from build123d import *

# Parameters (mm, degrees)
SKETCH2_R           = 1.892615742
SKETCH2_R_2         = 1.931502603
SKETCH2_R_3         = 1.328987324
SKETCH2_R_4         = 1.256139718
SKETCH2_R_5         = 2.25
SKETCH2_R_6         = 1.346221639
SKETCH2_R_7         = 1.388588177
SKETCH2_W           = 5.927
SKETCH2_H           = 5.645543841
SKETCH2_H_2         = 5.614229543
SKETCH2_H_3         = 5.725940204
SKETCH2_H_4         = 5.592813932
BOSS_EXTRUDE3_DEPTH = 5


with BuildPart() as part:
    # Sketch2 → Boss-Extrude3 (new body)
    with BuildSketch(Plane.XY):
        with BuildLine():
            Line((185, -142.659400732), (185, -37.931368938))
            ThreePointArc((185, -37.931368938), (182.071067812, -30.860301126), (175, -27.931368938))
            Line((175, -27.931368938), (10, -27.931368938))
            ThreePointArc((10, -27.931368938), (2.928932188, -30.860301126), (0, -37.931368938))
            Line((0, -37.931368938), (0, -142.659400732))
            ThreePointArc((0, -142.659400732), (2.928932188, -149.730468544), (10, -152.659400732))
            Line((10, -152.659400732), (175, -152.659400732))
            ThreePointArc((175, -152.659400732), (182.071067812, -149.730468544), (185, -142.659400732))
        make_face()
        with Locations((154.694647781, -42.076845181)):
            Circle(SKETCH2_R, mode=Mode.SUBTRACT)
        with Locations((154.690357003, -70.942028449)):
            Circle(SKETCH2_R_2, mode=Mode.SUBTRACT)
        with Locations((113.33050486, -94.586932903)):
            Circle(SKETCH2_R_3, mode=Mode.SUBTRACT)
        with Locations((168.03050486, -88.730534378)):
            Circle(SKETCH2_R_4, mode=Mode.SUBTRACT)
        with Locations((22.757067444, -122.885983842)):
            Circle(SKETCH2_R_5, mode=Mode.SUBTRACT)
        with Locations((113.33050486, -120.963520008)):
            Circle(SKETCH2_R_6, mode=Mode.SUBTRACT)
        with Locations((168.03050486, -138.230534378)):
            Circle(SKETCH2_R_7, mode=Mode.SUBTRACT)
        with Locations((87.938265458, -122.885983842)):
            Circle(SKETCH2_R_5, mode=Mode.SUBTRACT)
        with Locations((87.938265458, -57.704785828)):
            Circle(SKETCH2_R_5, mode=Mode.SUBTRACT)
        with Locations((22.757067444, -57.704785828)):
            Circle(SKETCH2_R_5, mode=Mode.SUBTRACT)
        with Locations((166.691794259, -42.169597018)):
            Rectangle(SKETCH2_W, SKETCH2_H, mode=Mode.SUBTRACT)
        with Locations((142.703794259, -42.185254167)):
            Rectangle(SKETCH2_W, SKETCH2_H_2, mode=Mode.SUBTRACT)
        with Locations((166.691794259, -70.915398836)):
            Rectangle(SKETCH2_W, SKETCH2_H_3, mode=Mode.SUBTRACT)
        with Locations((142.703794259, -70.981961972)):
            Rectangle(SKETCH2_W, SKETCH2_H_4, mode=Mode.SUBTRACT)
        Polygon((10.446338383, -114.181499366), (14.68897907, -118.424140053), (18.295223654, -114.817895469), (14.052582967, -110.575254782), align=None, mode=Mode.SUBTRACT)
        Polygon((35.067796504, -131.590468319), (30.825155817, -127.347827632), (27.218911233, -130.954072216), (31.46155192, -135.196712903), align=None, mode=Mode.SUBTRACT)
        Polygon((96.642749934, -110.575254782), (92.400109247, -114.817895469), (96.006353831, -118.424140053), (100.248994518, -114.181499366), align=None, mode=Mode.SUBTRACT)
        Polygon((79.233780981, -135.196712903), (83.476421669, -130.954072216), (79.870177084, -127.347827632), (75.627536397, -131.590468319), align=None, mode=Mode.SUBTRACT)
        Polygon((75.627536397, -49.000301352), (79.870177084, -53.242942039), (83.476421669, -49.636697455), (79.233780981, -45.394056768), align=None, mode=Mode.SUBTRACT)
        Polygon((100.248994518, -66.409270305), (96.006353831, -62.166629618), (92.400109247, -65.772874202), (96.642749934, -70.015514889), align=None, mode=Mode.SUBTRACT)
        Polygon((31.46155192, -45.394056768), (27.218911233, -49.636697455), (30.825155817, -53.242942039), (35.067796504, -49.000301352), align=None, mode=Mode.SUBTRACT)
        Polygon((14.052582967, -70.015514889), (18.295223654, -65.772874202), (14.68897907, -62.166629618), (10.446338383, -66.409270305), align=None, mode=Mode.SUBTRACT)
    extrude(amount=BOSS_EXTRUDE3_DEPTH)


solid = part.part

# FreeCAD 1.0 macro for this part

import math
import FreeCAD as App
import Part
import Sketcher
from FreeCAD import Vector
Q = App.Units.Quantity


def add_polygon(sketch, points):
    """Adds a closed chain of lines whose ends are joined by coincident constraints."""
    first, n = sketch.GeometryCount, len(points)
    for a, b in zip(points, points[1:] + points[:1]):
        sketch.addGeometry(Part.LineSegment(App.Vector(*a, 0), App.Vector(*b, 0)), False)
    for i in range(n):
        sketch.addConstraint(Sketcher.Constraint("Coincident", first + i, 2, first + (i + 1) % n, 1))

doc = App.newDocument("Part")
body = doc.addObject("PartDesign::Body", "Body")

sketch1 = body.newObject("Sketcher::SketchObject", "Sketch")
sketch1.AttachmentSupport = (doc.getObject("XY_Plane"), [""])
sketch1.MapMode = "FlatFace"
sketch1.addGeometry(Part.LineSegment(Vector(185, -142.7, 0), Vector(185, -37.9, 0)), False)
sketch1.addGeometry(Part.ArcOfCircle(Part.Circle(Vector(175, -37.9, 0), Vector(0, 0, 1), 10), math.radians(0), math.radians(90)), False)
sketch1.addGeometry(Part.LineSegment(Vector(175, -27.9, 0), Vector(10, -27.9, 0)), False)
sketch1.addGeometry(Part.ArcOfCircle(Part.Circle(Vector(10, -37.9, 0), Vector(0, 0, 1), 10), math.radians(90), math.radians(180)), False)
sketch1.addGeometry(Part.LineSegment(Vector(0, -37.9, 0), Vector(0, -142.7, 0)), False)
sketch1.addGeometry(Part.ArcOfCircle(Part.Circle(Vector(10, -142.7, 0), Vector(0, 0, 1), 10), math.radians(180), math.radians(270)), False)
sketch1.addGeometry(Part.LineSegment(Vector(10, -152.7, 0), Vector(175, -152.7, 0)), False)
sketch1.addGeometry(Part.ArcOfCircle(Part.Circle(Vector(175, -142.7, 0), Vector(0, 0, 1), 10), math.radians(-90), math.radians(0)), False)
add_polygon(sketch1, [(30.8, -127.3), (35.1, -131.6), (31.5, -135.2), (27.2, -131)])
sketch1.addGeometry(Part.Circle(Vector(22.8, -122.9, 0), Vector(0, 0, 1), 2.2), False)
add_polygon(sketch1, [(83.5, -131), (79.2, -135.2), (75.6, -131.6), (79.9, -127.3)])
sketch1.addGeometry(Part.Circle(Vector(87.9, -122.9, 0), Vector(0, 0, 1), 2.2), False)
add_polygon(sketch1, [(14.7, -118.4), (10.4, -114.2), (14.1, -110.6), (18.3, -114.8)])
sketch1.addGeometry(Part.Circle(Vector(113.3, -121, 0), Vector(0, 0, 1), 1.3), False)
sketch1.addGeometry(Part.Circle(Vector(168, -138.2, 0), Vector(0, 0, 1), 1.4), False)
add_polygon(sketch1, [(92.4, -114.8), (96.6, -110.6), (100.2, -114.2), (96, -118.4)])
sketch1.addGeometry(Part.Circle(Vector(113.3, -94.6, 0), Vector(0, 0, 1), 1.3), False)
add_polygon(sketch1, [(18.3, -65.8), (14.1, -70), (10.4, -66.4), (14.7, -62.2)])
sketch1.addGeometry(Part.Circle(Vector(22.8, -57.7, 0), Vector(0, 0, 1), 2.2), False)
add_polygon(sketch1, [(27.2, -49.6), (31.5, -45.4), (35.1, -49), (30.8, -53.2)])
sketch1.addGeometry(Part.Circle(Vector(87.9, -57.7, 0), Vector(0, 0, 1), 2.2), False)
add_polygon(sketch1, [(79.9, -53.2), (75.6, -49), (79.2, -45.4), (83.5, -49.6)])
add_polygon(sketch1, [(96, -62.2), (100.2, -66.4), (96.6, -70), (92.4, -65.8)])
sketch1.addGeometry(Part.Circle(Vector(168, -88.7, 0), Vector(0, 0, 1), 1.3), False)
add_polygon(sketch1, [(145.7, -73.8), (139.7, -73.8), (139.7, -68.2), (145.7, -68.2)])
sketch1.addGeometry(Part.Circle(Vector(154.7, -70.9, 0), Vector(0, 0, 1), 1.9), False)
add_polygon(sketch1, [(169.7, -73.8), (163.7, -73.8), (163.7, -68.1), (169.7, -68.1)])
add_polygon(sketch1, [(145.7, -45), (139.7, -45), (139.7, -39.4), (145.7, -39.4)])
sketch1.addGeometry(Part.Circle(Vector(154.7, -42.1, 0), Vector(0, 0, 1), 1.9), False)
add_polygon(sketch1, [(169.7, -45), (163.7, -45), (163.7, -39.3), (169.7, -39.3)])
sketch1.addConstraint(Sketcher.Constraint("Tangent", 0, 2, 1, 1))
sketch1.addConstraint(Sketcher.Constraint("Tangent", 1, 2, 2, 1))
sketch1.addConstraint(Sketcher.Constraint("Tangent", 2, 2, 3, 1))
sketch1.addConstraint(Sketcher.Constraint("Tangent", 3, 2, 4, 1))
sketch1.addConstraint(Sketcher.Constraint("Tangent", 4, 2, 5, 1))
sketch1.addConstraint(Sketcher.Constraint("Tangent", 5, 2, 6, 1))
sketch1.addConstraint(Sketcher.Constraint("Tangent", 6, 2, 7, 1))
sketch1.addConstraint(Sketcher.Constraint("Tangent", 7, 2, 0, 1))
sketch1.addConstraint(Sketcher.Constraint("Vertical", 0))
sketch1.addConstraint(Sketcher.Constraint("Horizontal", 2))
sketch1.addConstraint(Sketcher.Constraint("Vertical", 4))
sketch1.addConstraint(Sketcher.Constraint("Horizontal", 6))
sketch1.addConstraint(Sketcher.Constraint("Horizontal", 48))
sketch1.addConstraint(Sketcher.Constraint("Vertical", 49))
sketch1.addConstraint(Sketcher.Constraint("Horizontal", 50))
sketch1.addConstraint(Sketcher.Constraint("Vertical", 51))
sketch1.addConstraint(Sketcher.Constraint("Horizontal", 53))
sketch1.addConstraint(Sketcher.Constraint("Vertical", 54))
sketch1.addConstraint(Sketcher.Constraint("Horizontal", 55))
sketch1.addConstraint(Sketcher.Constraint("Vertical", 56))
sketch1.addConstraint(Sketcher.Constraint("Horizontal", 57))
sketch1.addConstraint(Sketcher.Constraint("Vertical", 58))
sketch1.addConstraint(Sketcher.Constraint("Horizontal", 59))
sketch1.addConstraint(Sketcher.Constraint("Vertical", 60))
sketch1.addConstraint(Sketcher.Constraint("Horizontal", 62))
sketch1.addConstraint(Sketcher.Constraint("Vertical", 63))
sketch1.addConstraint(Sketcher.Constraint("Horizontal", 64))
sketch1.addConstraint(Sketcher.Constraint("Vertical", 65))
sketch1.addConstraint(Sketcher.Constraint("Equal", 1, 3))
sketch1.addConstraint(Sketcher.Constraint("Equal", 3, 5))
sketch1.addConstraint(Sketcher.Constraint("Equal", 5, 7))
sketch1.addConstraint(Sketcher.Constraint("Equal", 12, 17))
sketch1.addConstraint(Sketcher.Constraint("Equal", 17, 33))
sketch1.addConstraint(Sketcher.Constraint("Equal", 33, 38))
sketch1.addConstraint(Sketcher.Constraint("PointOnObject", 3, 2, -2))
sketch1.addConstraint(Sketcher.Constraint("Perpendicular", 8, 9))
sketch1.addConstraint(Sketcher.Constraint("Perpendicular", 9, 10))
sketch1.addConstraint(Sketcher.Constraint("Perpendicular", 10, 11))
sketch1.addConstraint(Sketcher.Constraint("Parallel", 11, 13))
sketch1.addConstraint(Sketcher.Constraint("Perpendicular", 13, 14))
sketch1.addConstraint(Sketcher.Constraint("Perpendicular", 14, 15))
sketch1.addConstraint(Sketcher.Constraint("Perpendicular", 15, 16))
sketch1.addConstraint(Sketcher.Constraint("Parallel", 16, 18))
sketch1.addConstraint(Sketcher.Constraint("Perpendicular", 18, 19))
sketch1.addConstraint(Sketcher.Constraint("Perpendicular", 19, 20))
sketch1.addConstraint(Sketcher.Constraint("Perpendicular", 20, 21))
sketch1.addConstraint(Sketcher.Constraint("Parallel", 21, 24))
sketch1.addConstraint(Sketcher.Constraint("Perpendicular", 24, 25))
sketch1.addConstraint(Sketcher.Constraint("Perpendicular", 25, 26))
sketch1.addConstraint(Sketcher.Constraint("Perpendicular", 26, 27))
sketch1.addConstraint(Sketcher.Constraint("Perpendicular", 27, 29))
sketch1.addConstraint(Sketcher.Constraint("Perpendicular", 29, 30))
sketch1.addConstraint(Sketcher.Constraint("Perpendicular", 30, 31))
sketch1.addConstraint(Sketcher.Constraint("Perpendicular", 31, 32))
sketch1.addConstraint(Sketcher.Constraint("Perpendicular", 32, 34))
sketch1.addConstraint(Sketcher.Constraint("Perpendicular", 34, 35))
sketch1.addConstraint(Sketcher.Constraint("Perpendicular", 35, 36))
sketch1.addConstraint(Sketcher.Constraint("Perpendicular", 36, 37))
sketch1.addConstraint(Sketcher.Constraint("Parallel", 37, 39))
sketch1.addConstraint(Sketcher.Constraint("Perpendicular", 39, 40))
sketch1.addConstraint(Sketcher.Constraint("Perpendicular", 40, 41))
sketch1.addConstraint(Sketcher.Constraint("Perpendicular", 41, 42))
sketch1.addConstraint(Sketcher.Constraint("Perpendicular", 42, 43))
sketch1.addConstraint(Sketcher.Constraint("Perpendicular", 43, 44))
sketch1.addConstraint(Sketcher.Constraint("Perpendicular", 44, 45))
sketch1.addConstraint(Sketcher.Constraint("Perpendicular", 45, 46))
sketch1.addConstraint(Sketcher.Constraint("Horizontal", 12, 3, 17, 3))
sketch1.addConstraint(Sketcher.Constraint("Horizontal", 33, 3, 38, 3))
sketch1.addConstraint(Sketcher.Constraint("Horizontal", 9, 2, 13, 2))
sketch1.addConstraint(Sketcher.Constraint("Horizontal", 8, 2, 14, 2))
sketch1.addConstraint(Sketcher.Constraint("Horizontal", 11, 2, 15, 2))
sketch1.addConstraint(Sketcher.Constraint("Horizontal", 19, 2, 24, 2))
sketch1.addConstraint(Sketcher.Constraint("Horizontal", 18, 2, 25, 2))
sketch1.addConstraint(Sketcher.Constraint("Horizontal", 21, 2, 26, 2))
sketch1.addConstraint(Sketcher.Constraint("Horizontal", 35, 2, 39, 2))
sketch1.addConstraint(Sketcher.Constraint("Horizontal", 34, 2, 40, 2))
sketch1.addConstraint(Sketcher.Constraint("Horizontal", 37, 2, 41, 2))
sketch1.addConstraint(Sketcher.Constraint("Horizontal", 30, 2, 43, 2))
sketch1.addConstraint(Sketcher.Constraint("Horizontal", 29, 2, 44, 2))
sketch1.addConstraint(Sketcher.Constraint("Horizontal", 32, 2, 45, 2))
sketch1.addConstraint(Sketcher.Constraint("Horizontal", 51, 2, 53, 2))
sketch1.addConstraint(Sketcher.Constraint("Horizontal", 60, 2, 62, 2))
sketch1.addConstraint(Sketcher.Constraint("Vertical", 22, 3, 28, 3))
sketch1.addConstraint(Sketcher.Constraint("Vertical", 12, 3, 33, 3))
sketch1.addConstraint(Sketcher.Constraint("Vertical", 17, 3, 38, 3))
sketch1.addConstraint(Sketcher.Constraint("Vertical", 23, 3, 47, 3))
sketch1.addConstraint(Sketcher.Constraint("Vertical", 19, 2, 29, 2))
sketch1.addConstraint(Sketcher.Constraint("Vertical", 18, 2, 30, 2))
sketch1.addConstraint(Sketcher.Constraint("Vertical", 21, 2, 31, 2))
sketch1.addConstraint(Sketcher.Constraint("Vertical", 9, 2, 34, 2))
sketch1.addConstraint(Sketcher.Constraint("Vertical", 8, 2, 35, 2))
sketch1.addConstraint(Sketcher.Constraint("Vertical", 11, 2, 36, 2))
sketch1.addConstraint(Sketcher.Constraint("Vertical", 14, 2, 39, 2))
sketch1.addConstraint(Sketcher.Constraint("Vertical", 13, 2, 40, 2))
sketch1.addConstraint(Sketcher.Constraint("Vertical", 25, 2, 43, 2))
sketch1.addConstraint(Sketcher.Constraint("Vertical", 49, 2, 57, 2))
sketch1.addConstraint(Sketcher.Constraint("Vertical", 51, 2, 59, 2))
sketch1.addConstraint(Sketcher.Constraint("Vertical", 54, 2, 62, 2))
sketch1.addConstraint(Sketcher.Constraint("Vertical", 56, 2, 64, 2))
sketch1.addConstraint(Sketcher.Constraint("Equal", 50, 53))
sketch1.addConstraint(Sketcher.Constraint("Equal", 15, 18))
sketch1.addConstraint(Sketcher.Constraint("Equal", 16, 19))
sketch1.addConstraint(Sketcher.Constraint("Radius", 1, Q("10 mm")))
sketch1.addConstraint(Sketcher.Constraint("Diameter", 12, Q("4.5 mm")))
sketch1.addConstraint(Sketcher.Constraint("DistanceX", 2, 2, 2, 1, Q("165 mm")))
sketch1.addConstraint(Sketcher.Constraint("Distance", 8, Q("6 mm")))
sketch1.addConstraint(Sketcher.Constraint("Distance", 9, Q("5.1 mm")))
sketch1.addConstraint(Sketcher.Constraint("Diameter", 47, Q("2.512279 mm")))
sketch1.addConstraint(Sketcher.Constraint("Diameter", 61, Q("3.785231 mm")))
sketch1.addConstraint(Sketcher.Constraint("DistanceX", 48, 2, 48, 1, Q("5.927 mm")))
sketch1.addConstraint(Sketcher.Constraint("Diameter", 22, Q("2.692443 mm")))
sketch1.addConstraint(Sketcher.Constraint("Diameter", 23, Q("2.777176 mm")))
sketch1.addConstraint(Sketcher.Constraint("Diameter", 28, Q("2.657975 mm")))
sketch1.addConstraint(Sketcher.Constraint("Diameter", 52, Q("3.863005 mm")))
sketch1.addConstraint(Sketcher.Constraint("DistanceY", 0, 1, 0, 2, Q("104.728032 mm")))
sketch1.addConstraint(Sketcher.Constraint("DistanceY", 54, 1, 54, 2, Q("5.72594 mm")))
sketch1.addConstraint(Sketcher.Constraint("DistanceY", 58, 1, 58, 2, Q("5.61423 mm")))
sketch1.addConstraint(Sketcher.Constraint("DistanceY", 5, 3, -1, 1, Q("142.659401 mm")))
sketch1.addConstraint(Sketcher.Constraint("DistanceY", 18, 2, -1, 1, Q("114.181499 mm")))
sketch1.addConstraint(Sketcher.Constraint("DistanceY", 35, 2, -1, 1, Q("49.000301 mm")))
sketch1.addConstraint(Sketcher.Constraint("DistanceY", 49, 1, 49, 2, Q("5.592814 mm")))
sketch1.addConstraint(Sketcher.Constraint("DistanceY", 63, 1, 63, 2, Q("5.645544 mm")))
sketch1.addConstraint(Sketcher.Constraint("DistanceY", 22, 3, -1, 1, Q("120.96352 mm")))
sketch1.addConstraint(Sketcher.Constraint("DistanceY", 52, 3, -1, 1, Q("70.942028 mm")))
sketch1.addConstraint(Sketcher.Constraint("DistanceY", 8, 2, -1, 1, Q("131.590468 mm")))
sketch1.addConstraint(Sketcher.Constraint("DistanceX", -1, 1, 9, 2, Q("31.461552 mm")))
sketch1.addConstraint(Sketcher.Constraint("DistanceX", -1, 1, 13, 2, Q("79.233781 mm")))
sketch1.addConstraint(Sketcher.Constraint("DistanceX", -1, 1, 18, 2, Q("10.446338 mm")))
sketch1.addConstraint(Sketcher.Constraint("DistanceX", -1, 1, 24, 2, Q("96.64275 mm")))
sketch1.addConstraint(Sketcher.Constraint("DistanceY", 30, 2, -1, 1, Q("66.40927 mm")))
sketch1.addConstraint(Sketcher.Constraint("DistanceY", 48, 2, -1, 1, Q("73.778369 mm")))
sketch1.addConstraint(Sketcher.Constraint("DistanceY", 57, 2, -1, 1, Q("44.992369 mm")))
sketch1.addConstraint(Sketcher.Constraint("DistanceX", -1, 1, 12, 3, Q("22.757067 mm")))
sketch1.addConstraint(Sketcher.Constraint("DistanceY", 12, 3, -1, 1, Q("122.885984 mm")))
sketch1.addConstraint(Sketcher.Constraint("DistanceX", -1, 1, 17, 3, Q("87.938265 mm")))
sketch1.addConstraint(Sketcher.Constraint("DistanceX", -1, 1, 22, 3, Q("113.330505 mm")))
sketch1.addConstraint(Sketcher.Constraint("DistanceX", -1, 1, 23, 3, Q("168.030505 mm")))
sketch1.addConstraint(Sketcher.Constraint("DistanceY", 23, 3, -1, 1, Q("138.230534 mm")))
sketch1.addConstraint(Sketcher.Constraint("DistanceY", 28, 3, -1, 1, Q("94.586933 mm")))
sketch1.addConstraint(Sketcher.Constraint("DistanceY", 33, 3, -1, 1, Q("57.704786 mm")))
sketch1.addConstraint(Sketcher.Constraint("DistanceY", 47, 3, -1, 1, Q("88.730534 mm")))
sketch1.addConstraint(Sketcher.Constraint("DistanceX", -1, 1, 52, 3, Q("154.690357 mm")))
sketch1.addConstraint(Sketcher.Constraint("DistanceX", -1, 1, 61, 3, Q("154.694648 mm")))
sketch1.addConstraint(Sketcher.Constraint("DistanceY", 61, 3, -1, 1, Q("42.076845 mm")))
sketch1.addConstraint(Sketcher.Constraint("DistanceX", -1, 1, 48, 2, Q("139.740294 mm")))
sketch1.addConstraint(Sketcher.Constraint("DistanceX", -1, 1, 53, 2, Q("163.728294 mm")))
pad1 = body.newObject("PartDesign::Pad", "Pad")
pad1.Profile = sketch1
pad1.Length = 5

doc.recompute()
